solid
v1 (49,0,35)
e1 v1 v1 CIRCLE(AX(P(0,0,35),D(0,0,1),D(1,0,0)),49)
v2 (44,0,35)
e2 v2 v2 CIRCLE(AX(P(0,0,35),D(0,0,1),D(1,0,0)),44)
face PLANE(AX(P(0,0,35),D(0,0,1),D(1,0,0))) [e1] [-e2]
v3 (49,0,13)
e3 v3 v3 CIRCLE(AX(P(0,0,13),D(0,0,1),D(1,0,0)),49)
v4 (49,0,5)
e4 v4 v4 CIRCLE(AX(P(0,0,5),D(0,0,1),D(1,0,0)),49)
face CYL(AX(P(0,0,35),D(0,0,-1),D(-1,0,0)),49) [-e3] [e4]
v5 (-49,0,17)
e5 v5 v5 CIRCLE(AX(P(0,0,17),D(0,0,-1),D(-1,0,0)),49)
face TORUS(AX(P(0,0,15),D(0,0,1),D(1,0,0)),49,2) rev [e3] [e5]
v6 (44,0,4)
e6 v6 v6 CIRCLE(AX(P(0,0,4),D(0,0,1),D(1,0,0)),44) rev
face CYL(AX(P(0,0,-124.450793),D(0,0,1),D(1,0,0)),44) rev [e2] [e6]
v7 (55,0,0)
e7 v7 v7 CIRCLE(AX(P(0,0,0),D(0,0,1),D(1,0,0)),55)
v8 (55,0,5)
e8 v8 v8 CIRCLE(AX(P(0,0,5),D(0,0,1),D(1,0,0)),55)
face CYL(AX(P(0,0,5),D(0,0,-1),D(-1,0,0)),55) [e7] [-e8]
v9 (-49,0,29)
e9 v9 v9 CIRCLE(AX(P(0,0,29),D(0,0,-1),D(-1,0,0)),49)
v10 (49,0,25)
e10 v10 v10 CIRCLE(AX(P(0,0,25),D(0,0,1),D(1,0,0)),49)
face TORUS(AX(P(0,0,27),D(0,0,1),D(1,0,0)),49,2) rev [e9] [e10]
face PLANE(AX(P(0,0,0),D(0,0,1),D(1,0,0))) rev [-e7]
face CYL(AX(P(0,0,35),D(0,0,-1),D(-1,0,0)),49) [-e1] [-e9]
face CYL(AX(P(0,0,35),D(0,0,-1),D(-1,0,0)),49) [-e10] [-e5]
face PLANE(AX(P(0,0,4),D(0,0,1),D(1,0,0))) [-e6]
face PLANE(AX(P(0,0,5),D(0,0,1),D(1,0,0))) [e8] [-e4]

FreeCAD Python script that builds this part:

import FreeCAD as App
import Part
import Sketcher
from FreeCAD import Vector

doc = App.newDocument("Part")
body = doc.addObject("PartDesign::Body", "Body")

sketch1 = doc.addObject("Sketcher::SketchObject", "Sketch")
body.addObject(sketch1)
sketch1.AttachmentSupport = (doc.XY_Plane, [""])
sketch1.MapMode = "FlatFace"
sketch1.addGeometry(Part.Circle(Vector(0, 0, 0), Vector(0, 0, 1), 55), False)
sketch1.addConstraint(Sketcher.Constraint("Coincident", 0, 3, -1, 1))
sketch1.addConstraint(Sketcher.Constraint("Diameter", 0, 110.0))
pad1 = doc.addObject("PartDesign::Pad", "Pad")
body.addObject(pad1)
pad1.Profile = sketch1
pad1.Length = 5

sketch2 = doc.addObject("Sketcher::SketchObject", "Sketch001")
body.addObject(sketch2)
sketch2.AttachmentSupport = (doc.XY_Plane, [""])
sketch2.MapMode = "FlatFace"
sketch2.AttachmentOffset = App.Placement(Vector(0, 0, 5), App.Rotation())
sketch2.addGeometry(Part.Circle(Vector(0, 0, 0), Vector(0, 0, 1), 49), False)
sketch2.addConstraint(Sketcher.Constraint("Coincident", 0, 3, -1, 1))
sketch2.addConstraint(Sketcher.Constraint("Diameter", 0, 98.0))
pad2 = doc.addObject("PartDesign::Pad", "Pad001")
body.addObject(pad2)
pad2.Profile = sketch2
pad2.Length = 30

sketch3 = doc.addObject("Sketcher::SketchObject", "Sketch002")
body.addObject(sketch3)
sketch3.AttachmentSupport = (doc.XZ_Plane, [""])
sketch3.MapMode = "FlatFace"
sketch3.addGeometry(Part.Circle(Vector(-49, 15, 0), Vector(0, 0, 1), 2), False)
sketch3.addGeometry(Part.Circle(Vector(-49, 27, 0), Vector(0, 0, 1), 2), False)
sketch3.addConstraint(Sketcher.Constraint("Equal", 0, 1))
sketch3.addConstraint(Sketcher.Constraint("Vertical", 0, 3, 1, 3))
sketch3.addConstraint(Sketcher.Constraint("Diameter", 0, 4.0))
sketch3.addConstraint(Sketcher.Constraint("DistanceX", 0, 3, -1, 1, 49.0))
sketch3.addConstraint(Sketcher.Constraint("DistanceY", -1, 1, 0, 3, 15.0))
sketch3.addConstraint(Sketcher.Constraint("DistanceY", -1, 1, 1, 3, 27.0))
groove = doc.addObject("PartDesign::Groove", "Groove")
body.addObject(groove)
groove.Profile = sketch3
groove.ReferenceAxis = (sketch3, ["V_Axis"])
groove.Angle = 360

sketch4 = doc.addObject("Sketcher::SketchObject", "Sketch003")
body.addObject(sketch4)
sketch4.AttachmentSupport = (doc.XY_Plane, [""])
sketch4.MapMode = "FlatFace"
sketch4.AttachmentOffset = App.Placement(Vector(0, 0, 35), App.Rotation())
sketch4.addGeometry(Part.Circle(Vector(0, 0, 0), Vector(0, 0, 1), 44), False)
sketch4.addConstraint(Sketcher.Constraint("Coincident", 0, 3, -1, 1))
sketch4.addConstraint(Sketcher.Constraint("Diameter", 0, 88.0))
pocket1 = doc.addObject("PartDesign::Pocket", "Pocket")
body.addObject(pocket1)
pocket1.Profile = sketch4
pocket1.Length = 31

doc.recompute()
